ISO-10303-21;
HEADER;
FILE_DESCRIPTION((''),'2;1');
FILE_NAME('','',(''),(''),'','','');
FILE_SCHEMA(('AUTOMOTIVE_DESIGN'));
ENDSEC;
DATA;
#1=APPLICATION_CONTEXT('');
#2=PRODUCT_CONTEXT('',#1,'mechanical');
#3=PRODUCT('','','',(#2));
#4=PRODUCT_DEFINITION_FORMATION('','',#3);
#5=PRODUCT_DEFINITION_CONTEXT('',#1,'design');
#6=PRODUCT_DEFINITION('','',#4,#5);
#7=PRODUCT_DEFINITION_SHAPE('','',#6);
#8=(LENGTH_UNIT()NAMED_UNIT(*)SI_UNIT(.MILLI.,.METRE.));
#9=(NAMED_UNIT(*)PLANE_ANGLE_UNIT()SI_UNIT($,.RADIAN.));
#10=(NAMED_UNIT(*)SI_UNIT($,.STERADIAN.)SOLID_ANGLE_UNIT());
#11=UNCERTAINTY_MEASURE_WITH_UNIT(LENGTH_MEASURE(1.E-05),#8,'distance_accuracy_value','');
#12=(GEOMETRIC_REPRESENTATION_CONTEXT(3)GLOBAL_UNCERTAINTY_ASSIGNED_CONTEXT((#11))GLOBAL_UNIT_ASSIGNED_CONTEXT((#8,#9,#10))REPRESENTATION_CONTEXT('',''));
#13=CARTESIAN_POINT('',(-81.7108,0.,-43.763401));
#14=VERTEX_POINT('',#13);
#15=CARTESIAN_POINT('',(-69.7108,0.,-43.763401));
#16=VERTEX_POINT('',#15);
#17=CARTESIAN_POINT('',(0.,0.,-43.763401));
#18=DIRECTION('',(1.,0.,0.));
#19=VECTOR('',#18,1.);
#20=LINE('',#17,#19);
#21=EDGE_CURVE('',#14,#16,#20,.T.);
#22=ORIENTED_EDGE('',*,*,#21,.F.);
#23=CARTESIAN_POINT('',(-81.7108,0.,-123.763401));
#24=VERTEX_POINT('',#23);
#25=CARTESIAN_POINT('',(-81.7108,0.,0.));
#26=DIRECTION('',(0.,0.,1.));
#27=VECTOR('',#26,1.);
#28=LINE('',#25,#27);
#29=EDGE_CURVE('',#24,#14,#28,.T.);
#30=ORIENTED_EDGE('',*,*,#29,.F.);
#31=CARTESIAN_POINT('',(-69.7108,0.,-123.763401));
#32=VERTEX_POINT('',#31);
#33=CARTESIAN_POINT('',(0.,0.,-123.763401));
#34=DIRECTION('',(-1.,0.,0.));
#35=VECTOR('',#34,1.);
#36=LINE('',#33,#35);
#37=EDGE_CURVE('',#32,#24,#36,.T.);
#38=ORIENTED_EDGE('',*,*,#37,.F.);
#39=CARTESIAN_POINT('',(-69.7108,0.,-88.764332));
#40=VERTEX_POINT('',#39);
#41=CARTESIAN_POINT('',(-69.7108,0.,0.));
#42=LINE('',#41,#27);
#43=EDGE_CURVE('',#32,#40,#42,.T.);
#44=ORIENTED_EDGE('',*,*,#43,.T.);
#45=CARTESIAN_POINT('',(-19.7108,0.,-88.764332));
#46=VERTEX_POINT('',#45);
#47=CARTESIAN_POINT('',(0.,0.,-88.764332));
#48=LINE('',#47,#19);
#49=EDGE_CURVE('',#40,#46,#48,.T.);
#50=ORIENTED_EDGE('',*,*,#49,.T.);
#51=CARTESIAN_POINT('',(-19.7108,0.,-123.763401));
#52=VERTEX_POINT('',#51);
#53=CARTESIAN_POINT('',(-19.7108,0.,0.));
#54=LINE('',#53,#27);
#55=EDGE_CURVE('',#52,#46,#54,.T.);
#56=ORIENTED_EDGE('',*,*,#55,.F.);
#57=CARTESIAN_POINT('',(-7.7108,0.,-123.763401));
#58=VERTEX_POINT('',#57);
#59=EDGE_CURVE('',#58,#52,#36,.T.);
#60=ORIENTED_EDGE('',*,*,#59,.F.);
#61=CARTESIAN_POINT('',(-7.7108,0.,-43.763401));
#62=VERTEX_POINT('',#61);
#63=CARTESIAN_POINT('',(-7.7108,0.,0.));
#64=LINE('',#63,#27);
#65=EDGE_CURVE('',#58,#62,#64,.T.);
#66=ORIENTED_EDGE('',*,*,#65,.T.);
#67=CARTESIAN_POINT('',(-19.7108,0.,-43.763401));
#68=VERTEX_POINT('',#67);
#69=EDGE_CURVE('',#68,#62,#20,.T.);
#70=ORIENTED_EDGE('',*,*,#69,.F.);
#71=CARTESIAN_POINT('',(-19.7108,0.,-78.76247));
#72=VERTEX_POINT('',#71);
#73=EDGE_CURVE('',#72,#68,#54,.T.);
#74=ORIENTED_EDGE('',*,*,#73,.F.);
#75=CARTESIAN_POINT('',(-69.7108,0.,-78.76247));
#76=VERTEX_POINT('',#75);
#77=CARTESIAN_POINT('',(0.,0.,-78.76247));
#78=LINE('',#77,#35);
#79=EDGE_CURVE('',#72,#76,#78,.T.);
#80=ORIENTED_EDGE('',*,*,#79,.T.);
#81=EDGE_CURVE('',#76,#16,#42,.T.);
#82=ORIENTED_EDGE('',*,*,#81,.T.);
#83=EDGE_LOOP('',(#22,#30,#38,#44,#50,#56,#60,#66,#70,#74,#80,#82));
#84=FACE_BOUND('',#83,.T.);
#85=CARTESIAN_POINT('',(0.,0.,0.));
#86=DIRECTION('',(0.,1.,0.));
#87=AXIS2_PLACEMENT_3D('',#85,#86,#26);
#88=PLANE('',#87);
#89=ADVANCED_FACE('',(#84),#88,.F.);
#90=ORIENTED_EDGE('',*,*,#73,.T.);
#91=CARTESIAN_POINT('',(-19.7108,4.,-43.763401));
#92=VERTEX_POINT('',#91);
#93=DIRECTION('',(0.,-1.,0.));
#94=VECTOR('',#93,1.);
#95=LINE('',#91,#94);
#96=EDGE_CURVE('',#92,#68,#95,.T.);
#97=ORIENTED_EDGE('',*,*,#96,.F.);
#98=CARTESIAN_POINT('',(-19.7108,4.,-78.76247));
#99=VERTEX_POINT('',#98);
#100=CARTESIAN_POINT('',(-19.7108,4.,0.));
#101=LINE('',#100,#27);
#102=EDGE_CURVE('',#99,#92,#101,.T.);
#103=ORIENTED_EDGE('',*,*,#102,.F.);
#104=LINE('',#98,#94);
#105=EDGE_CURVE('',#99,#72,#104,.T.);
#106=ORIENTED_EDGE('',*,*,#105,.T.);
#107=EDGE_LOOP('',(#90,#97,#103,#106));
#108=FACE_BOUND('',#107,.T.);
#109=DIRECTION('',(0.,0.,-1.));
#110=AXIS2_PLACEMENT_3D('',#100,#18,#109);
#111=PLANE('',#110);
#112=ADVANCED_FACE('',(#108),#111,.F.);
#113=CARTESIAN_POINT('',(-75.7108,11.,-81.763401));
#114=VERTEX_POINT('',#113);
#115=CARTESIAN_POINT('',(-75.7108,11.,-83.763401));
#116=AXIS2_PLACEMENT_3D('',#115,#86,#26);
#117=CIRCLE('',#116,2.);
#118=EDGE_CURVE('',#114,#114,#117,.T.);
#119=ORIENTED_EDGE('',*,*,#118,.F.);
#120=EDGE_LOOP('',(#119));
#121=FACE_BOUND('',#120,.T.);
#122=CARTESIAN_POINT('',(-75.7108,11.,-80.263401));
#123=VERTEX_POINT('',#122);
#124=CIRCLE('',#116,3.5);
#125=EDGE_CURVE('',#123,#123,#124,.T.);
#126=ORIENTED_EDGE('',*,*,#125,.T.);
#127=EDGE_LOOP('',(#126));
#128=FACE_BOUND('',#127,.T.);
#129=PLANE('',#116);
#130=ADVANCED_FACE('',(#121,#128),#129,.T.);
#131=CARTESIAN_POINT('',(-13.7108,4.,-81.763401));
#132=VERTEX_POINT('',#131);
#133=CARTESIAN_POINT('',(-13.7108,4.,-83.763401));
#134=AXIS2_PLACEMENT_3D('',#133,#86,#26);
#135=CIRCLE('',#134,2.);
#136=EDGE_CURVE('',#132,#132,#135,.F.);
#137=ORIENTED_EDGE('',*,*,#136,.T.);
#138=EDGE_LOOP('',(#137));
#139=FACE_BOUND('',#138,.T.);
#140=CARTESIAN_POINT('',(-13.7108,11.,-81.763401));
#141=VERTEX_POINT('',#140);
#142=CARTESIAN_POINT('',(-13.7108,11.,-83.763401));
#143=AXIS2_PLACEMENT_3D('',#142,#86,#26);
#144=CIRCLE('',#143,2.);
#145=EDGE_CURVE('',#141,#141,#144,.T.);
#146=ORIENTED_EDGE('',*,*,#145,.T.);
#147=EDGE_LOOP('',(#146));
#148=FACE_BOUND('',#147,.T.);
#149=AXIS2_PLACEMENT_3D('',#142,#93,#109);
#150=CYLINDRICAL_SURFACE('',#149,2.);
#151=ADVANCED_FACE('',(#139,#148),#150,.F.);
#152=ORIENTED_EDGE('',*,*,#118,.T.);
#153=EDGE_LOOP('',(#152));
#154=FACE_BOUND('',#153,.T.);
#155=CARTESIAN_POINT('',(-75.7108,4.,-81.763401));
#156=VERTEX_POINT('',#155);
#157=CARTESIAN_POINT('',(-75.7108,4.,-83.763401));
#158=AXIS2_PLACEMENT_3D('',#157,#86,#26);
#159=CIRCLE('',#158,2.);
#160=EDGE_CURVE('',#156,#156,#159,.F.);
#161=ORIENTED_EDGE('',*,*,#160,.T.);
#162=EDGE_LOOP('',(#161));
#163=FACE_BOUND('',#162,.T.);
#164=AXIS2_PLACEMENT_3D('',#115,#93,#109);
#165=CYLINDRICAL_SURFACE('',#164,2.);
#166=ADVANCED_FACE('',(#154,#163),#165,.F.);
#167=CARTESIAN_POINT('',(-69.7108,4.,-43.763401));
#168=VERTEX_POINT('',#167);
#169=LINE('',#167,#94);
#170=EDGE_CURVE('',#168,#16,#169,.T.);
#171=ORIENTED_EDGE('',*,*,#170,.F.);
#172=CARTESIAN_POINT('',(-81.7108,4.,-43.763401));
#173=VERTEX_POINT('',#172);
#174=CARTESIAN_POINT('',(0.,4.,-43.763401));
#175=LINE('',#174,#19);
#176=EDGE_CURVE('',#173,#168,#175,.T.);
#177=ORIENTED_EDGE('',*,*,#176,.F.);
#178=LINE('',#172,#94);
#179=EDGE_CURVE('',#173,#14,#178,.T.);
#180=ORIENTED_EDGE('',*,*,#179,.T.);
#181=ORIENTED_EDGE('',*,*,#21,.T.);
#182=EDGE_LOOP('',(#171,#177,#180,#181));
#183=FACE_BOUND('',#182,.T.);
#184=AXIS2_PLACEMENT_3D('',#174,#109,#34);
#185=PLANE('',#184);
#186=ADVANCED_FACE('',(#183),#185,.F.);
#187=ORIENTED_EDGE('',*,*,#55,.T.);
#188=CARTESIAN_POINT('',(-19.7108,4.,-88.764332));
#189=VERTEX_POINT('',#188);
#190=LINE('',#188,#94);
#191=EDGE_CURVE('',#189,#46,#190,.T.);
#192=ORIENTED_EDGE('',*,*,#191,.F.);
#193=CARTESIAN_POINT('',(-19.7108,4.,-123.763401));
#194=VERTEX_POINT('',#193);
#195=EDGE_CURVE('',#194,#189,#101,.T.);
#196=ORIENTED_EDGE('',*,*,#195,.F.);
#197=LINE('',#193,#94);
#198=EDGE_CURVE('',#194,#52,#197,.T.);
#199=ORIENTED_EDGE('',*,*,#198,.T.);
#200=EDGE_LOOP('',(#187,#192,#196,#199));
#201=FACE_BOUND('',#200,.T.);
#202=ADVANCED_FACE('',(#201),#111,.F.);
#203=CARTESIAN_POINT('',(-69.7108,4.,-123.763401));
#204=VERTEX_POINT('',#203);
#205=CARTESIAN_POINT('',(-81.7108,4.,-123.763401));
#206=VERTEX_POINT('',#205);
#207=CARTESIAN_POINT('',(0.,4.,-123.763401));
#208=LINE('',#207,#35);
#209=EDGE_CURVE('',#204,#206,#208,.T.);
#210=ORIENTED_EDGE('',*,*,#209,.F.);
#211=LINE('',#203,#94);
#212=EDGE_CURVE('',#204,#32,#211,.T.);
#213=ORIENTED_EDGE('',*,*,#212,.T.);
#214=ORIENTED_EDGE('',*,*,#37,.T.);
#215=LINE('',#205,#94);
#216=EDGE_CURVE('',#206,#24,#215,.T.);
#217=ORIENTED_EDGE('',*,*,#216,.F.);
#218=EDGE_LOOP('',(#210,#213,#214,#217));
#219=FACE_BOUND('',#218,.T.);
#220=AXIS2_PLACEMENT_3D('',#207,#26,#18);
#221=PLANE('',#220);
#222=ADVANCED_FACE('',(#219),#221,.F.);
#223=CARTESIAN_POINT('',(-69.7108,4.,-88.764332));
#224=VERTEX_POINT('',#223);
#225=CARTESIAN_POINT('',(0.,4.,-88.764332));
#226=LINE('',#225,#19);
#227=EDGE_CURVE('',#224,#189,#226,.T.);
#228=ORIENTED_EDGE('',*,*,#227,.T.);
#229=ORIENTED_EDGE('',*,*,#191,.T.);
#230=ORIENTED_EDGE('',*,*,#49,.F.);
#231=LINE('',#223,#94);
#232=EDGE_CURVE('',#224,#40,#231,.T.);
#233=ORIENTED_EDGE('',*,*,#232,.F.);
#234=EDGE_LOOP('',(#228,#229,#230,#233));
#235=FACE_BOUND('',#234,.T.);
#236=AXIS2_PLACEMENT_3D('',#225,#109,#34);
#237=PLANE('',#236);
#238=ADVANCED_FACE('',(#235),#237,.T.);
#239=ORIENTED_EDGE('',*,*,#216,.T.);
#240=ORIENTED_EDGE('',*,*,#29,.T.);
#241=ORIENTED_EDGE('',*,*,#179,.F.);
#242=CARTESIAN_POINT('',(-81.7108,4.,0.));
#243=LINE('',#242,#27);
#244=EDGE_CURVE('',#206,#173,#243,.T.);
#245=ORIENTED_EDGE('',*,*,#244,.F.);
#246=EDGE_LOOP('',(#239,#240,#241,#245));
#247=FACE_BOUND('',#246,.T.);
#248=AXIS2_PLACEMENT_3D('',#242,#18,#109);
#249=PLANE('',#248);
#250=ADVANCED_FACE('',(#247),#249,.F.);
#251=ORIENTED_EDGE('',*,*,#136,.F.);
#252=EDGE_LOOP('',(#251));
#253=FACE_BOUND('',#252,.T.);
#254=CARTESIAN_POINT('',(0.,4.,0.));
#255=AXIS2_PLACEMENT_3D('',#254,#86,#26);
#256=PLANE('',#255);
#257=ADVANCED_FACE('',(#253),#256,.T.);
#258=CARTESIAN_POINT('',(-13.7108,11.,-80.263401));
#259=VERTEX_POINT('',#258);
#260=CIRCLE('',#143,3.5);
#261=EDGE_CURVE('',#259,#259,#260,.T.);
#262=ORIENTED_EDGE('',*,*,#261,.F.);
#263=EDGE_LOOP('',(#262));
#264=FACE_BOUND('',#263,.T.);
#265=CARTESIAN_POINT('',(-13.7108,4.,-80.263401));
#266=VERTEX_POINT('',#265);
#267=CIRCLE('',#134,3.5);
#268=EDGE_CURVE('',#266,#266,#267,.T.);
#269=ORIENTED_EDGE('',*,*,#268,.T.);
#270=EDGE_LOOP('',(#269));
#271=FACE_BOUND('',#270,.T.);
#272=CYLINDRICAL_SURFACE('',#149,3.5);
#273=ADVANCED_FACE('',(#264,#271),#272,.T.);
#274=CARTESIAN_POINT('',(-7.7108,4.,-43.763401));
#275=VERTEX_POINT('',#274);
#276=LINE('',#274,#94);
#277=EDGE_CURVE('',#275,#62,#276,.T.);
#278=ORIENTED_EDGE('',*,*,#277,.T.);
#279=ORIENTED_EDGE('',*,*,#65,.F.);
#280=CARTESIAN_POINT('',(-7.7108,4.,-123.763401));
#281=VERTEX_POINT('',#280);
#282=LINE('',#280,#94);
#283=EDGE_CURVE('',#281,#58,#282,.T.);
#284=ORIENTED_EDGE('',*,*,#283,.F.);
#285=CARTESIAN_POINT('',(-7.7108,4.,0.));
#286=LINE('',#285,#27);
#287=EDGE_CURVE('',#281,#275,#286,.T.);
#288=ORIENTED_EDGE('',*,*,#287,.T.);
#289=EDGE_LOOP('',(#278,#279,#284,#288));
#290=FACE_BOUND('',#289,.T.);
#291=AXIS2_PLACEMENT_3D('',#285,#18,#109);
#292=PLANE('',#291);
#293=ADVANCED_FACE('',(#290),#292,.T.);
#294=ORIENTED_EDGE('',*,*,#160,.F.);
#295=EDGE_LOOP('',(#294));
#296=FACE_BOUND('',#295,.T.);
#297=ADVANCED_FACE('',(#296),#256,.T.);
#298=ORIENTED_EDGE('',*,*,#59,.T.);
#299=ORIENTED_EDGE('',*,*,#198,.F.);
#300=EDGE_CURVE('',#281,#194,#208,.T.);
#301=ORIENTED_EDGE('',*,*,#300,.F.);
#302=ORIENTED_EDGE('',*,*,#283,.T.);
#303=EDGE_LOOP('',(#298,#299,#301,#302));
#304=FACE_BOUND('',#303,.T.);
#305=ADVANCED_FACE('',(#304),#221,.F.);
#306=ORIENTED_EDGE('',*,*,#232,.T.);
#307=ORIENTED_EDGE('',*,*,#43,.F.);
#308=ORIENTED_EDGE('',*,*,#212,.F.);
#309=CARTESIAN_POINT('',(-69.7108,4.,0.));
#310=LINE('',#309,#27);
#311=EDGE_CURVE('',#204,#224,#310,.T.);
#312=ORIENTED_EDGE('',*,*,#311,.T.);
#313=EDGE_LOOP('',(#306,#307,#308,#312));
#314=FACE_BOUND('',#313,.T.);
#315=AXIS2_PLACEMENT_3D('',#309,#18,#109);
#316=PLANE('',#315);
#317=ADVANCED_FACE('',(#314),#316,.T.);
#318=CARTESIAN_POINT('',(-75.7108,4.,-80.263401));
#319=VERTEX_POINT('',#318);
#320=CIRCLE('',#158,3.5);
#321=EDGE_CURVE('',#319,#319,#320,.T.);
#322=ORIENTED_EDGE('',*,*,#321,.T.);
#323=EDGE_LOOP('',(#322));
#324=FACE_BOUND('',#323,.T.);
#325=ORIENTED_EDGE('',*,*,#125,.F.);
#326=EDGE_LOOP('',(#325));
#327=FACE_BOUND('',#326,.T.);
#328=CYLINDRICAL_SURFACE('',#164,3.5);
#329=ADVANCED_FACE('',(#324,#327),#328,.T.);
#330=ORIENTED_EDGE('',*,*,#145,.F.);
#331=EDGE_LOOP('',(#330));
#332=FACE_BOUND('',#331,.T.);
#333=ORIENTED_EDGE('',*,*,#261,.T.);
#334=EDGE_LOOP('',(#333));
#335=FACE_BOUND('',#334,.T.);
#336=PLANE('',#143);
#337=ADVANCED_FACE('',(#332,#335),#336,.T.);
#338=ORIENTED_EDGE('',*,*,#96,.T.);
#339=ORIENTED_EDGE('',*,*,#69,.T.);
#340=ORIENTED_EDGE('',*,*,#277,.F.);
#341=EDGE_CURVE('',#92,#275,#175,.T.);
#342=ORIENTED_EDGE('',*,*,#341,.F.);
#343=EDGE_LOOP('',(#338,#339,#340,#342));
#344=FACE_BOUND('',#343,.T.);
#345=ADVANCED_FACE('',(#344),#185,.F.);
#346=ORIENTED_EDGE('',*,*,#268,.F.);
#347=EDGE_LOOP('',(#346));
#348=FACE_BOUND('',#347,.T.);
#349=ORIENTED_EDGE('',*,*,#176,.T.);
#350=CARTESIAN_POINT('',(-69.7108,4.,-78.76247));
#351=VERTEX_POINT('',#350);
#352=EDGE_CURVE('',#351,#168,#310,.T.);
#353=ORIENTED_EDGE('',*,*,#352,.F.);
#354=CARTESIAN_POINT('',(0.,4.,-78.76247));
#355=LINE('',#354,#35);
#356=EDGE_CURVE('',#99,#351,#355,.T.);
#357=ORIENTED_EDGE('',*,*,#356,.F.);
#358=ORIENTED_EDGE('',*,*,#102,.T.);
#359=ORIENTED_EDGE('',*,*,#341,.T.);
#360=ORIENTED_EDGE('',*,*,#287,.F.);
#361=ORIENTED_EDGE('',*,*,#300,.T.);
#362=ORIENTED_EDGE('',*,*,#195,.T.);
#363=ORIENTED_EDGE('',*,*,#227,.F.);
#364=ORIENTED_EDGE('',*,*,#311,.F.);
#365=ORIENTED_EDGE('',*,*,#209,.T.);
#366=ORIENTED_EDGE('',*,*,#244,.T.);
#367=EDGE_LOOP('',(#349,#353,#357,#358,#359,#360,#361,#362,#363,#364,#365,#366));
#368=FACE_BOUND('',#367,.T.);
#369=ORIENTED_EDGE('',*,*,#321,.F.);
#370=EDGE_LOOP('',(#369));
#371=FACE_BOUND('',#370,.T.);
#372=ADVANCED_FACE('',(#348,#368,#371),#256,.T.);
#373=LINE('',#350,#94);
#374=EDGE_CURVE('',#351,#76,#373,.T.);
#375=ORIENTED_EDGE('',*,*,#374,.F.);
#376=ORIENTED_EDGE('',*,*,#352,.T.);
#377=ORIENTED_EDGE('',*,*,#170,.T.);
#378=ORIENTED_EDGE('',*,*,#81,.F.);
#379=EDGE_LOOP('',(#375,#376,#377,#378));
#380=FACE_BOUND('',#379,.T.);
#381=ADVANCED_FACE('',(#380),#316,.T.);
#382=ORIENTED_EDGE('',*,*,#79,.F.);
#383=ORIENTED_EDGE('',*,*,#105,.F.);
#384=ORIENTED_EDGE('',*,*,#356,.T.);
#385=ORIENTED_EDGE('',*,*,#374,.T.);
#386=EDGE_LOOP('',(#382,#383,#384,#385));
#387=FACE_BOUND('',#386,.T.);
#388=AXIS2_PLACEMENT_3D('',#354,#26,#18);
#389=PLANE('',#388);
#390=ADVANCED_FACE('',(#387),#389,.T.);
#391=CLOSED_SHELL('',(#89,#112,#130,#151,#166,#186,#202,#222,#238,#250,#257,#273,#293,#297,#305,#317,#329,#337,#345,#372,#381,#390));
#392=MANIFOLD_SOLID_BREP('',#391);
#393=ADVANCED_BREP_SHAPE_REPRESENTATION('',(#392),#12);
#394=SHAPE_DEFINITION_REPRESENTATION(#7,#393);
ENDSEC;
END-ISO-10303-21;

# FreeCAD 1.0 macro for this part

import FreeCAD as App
import Part
import Sketcher
Q = App.Units.Quantity


def add_polygon(sketch, points):
    """Adds a closed chain of lines whose ends are joined by coincident constraints."""
    first, n = sketch.GeometryCount, len(points)
    for a, b in zip(points, points[1:] + points[:1]):
        sketch.addGeometry(Part.LineSegment(App.Vector(*a, 0), App.Vector(*b, 0)), False)
    for i in range(n):
        sketch.addConstraint(Sketcher.Constraint("Coincident", first + i, 2, first + (i + 1) % n, 1))

doc = App.newDocument("Part")
body = doc.addObject("PartDesign::Body", "Body")

sketch1 = doc.addObject("Sketcher::SketchObject", "Sketch")
body.addObject(sketch1)
sketch1.AttachmentSupport = (doc.XZ_Plane, [""])
sketch1.MapMode = "FlatFace"
add_polygon(sketch1, [(-82, -124), (-82, -44), (-70, -44), (-70, -79), (-20, -79), (-20, -44), (-8, -44), (-8, -124), (-20, -124), (-20, -89), (-70, -89), (-70, -124)])
sketch1.addConstraint([
    Sketcher.Constraint("Vertical", 0),
    Sketcher.Constraint("Horizontal", 1),
    Sketcher.Constraint("Vertical", 2),
    Sketcher.Constraint("Horizontal", 3),
    Sketcher.Constraint("Vertical", 4),
    Sketcher.Constraint("Horizontal", 5),
    Sketcher.Constraint("Vertical", 6),
    Sketcher.Constraint("Horizontal", 7),
    Sketcher.Constraint("Vertical", 8),
    Sketcher.Constraint("Horizontal", 9),
    Sketcher.Constraint("Vertical", 10),
    Sketcher.Constraint("Horizontal", 11),
    Sketcher.Constraint("Horizontal", 1, 2, 4, 2),
    Sketcher.Constraint("Horizontal", 7, 2, 10, 2),
    Sketcher.Constraint("Vertical", 4, 2, 7, 2),
    Sketcher.Constraint("Vertical", 2, 2, 9, 2),
    Sketcher.Constraint("Equal", 1, 5),
    Sketcher.Constraint("Equal", 4, 8),
    Sketcher.Constraint("DistanceX", 1, 1, 1, 2, Q("12 mm")),
    Sketcher.Constraint("DistanceX", 3, 1, 3, 2, Q("50 mm")),
    Sketcher.Constraint("DistanceY", 0, 1, 0, 2, Q("80 mm")),
    Sketcher.Constraint("DistanceY", 2, 2, 2, 1, Q("34.999069 mm")),
    Sketcher.Constraint("DistanceX", 0, 2, -1, 1, Q("81.7108 mm")),
    Sketcher.Constraint("DistanceY", 0, 2, -1, 1, Q("43.763401 mm")),
])
pad1 = doc.addObject("PartDesign::Pad", "Pad")
body.addObject(pad1)
pad1.Profile = sketch1
pad1.Length = 4
pad1.Reversed = True

sketch2 = doc.addObject("Sketcher::SketchObject", "Sketch001")
body.addObject(sketch2)
sketch2.AttachmentSupport = (doc.XZ_Plane, [""])
sketch2.MapMode = "FlatFace"
sketch2.AttachmentOffset = App.Placement(App.Vector(0, 0, -4), App.Rotation())
sketch2.addGeometry([
    Part.Circle(App.Vector(-75.7, -83.8, 0), App.Vector(0, 0, 1), 3.5),
    Part.Circle(App.Vector(-75.7, -83.8, 0), App.Vector(0, 0, 1), 2),
    Part.Circle(App.Vector(-13.7, -83.8, 0), App.Vector(0, 0, 1), 3.5),
    Part.Circle(App.Vector(-13.7, -83.8, 0), App.Vector(0, 0, 1), 2),
], False)
sketch2.addConstraint([
    Sketcher.Constraint("Coincident", 1, 3, 0, 3),
    Sketcher.Constraint("Coincident", 3, 3, 2, 3),
    Sketcher.Constraint("Equal", 0, 2),
    Sketcher.Constraint("Equal", 1, 3),
    Sketcher.Constraint("Horizontal", 1, 3, 2, 3),
    Sketcher.Constraint("Diameter", 0, Q("7 mm")),
    Sketcher.Constraint("Diameter", 1, Q("4 mm")),
    Sketcher.Constraint("DistanceX", 0, 3, 2, 3, Q("62 mm")),
    Sketcher.Constraint("DistanceX", 0, 3, -1, 1, Q("75.7108 mm")),
    Sketcher.Constraint("DistanceY", 0, 3, -1, 1, Q("83.763401 mm")),
])
pad2 = doc.addObject("PartDesign::Pad", "Pad001")
body.addObject(pad2)
pad2.Profile = sketch2
pad2.Length = 7
pad2.Reversed = True

doc.recompute()
